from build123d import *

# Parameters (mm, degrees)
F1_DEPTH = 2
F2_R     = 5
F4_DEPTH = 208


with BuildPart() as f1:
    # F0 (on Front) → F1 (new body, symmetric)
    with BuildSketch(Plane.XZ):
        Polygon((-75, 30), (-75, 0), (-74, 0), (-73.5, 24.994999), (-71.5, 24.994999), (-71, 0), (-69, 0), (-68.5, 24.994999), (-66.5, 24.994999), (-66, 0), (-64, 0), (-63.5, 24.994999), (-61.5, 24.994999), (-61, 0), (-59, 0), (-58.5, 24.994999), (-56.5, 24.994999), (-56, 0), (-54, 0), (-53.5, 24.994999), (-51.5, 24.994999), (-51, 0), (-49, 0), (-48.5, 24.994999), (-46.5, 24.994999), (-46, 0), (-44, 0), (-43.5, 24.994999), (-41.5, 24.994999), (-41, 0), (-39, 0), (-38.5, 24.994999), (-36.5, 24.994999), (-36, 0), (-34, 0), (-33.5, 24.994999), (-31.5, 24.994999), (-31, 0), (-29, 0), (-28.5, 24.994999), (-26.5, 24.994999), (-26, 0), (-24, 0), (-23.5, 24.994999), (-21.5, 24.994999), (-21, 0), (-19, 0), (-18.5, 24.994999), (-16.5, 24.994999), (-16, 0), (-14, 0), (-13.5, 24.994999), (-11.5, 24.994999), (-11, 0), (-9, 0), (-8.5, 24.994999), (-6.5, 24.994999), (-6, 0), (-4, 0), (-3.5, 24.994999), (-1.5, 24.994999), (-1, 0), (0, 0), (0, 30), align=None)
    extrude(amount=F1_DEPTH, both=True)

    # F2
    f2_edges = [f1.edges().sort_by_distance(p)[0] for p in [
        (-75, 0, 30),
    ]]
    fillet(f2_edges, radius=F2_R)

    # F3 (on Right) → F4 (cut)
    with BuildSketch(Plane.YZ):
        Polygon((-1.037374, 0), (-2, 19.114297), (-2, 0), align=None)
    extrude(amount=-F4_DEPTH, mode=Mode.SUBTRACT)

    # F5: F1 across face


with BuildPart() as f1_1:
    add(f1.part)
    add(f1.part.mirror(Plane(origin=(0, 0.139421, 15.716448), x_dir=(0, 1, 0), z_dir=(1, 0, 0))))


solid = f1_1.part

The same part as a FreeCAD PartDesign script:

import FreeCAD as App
import Part
import Sketcher

V = App.Vector
Q = App.Units.Quantity


def edges_at(feature, points):
    """Names of the edges that pass closest to the given points."""
    edges = feature.Shape.Edges
    near = lambda p: min(range(len(edges)), key=lambda i: edges[i].distToShape(Part.Vertex(*p))[0])
    return sorted({f"Edge{near(p) + 1}" for p in points})

doc = App.newDocument("Part")
body = doc.addObject("PartDesign::Body", "Body")

# Sketch on XZ plane
sketch1 = body.newObject("Sketcher::SketchObject", "Sketch")
sketch1.AttachmentSupport = (doc.getObject("XZ_Plane"), [""])
sketch1.MapMode = "FlatFace"
sketch1.addGeometry([
    Part.LineSegment(V(-75, 30, 0), V(-75, 0, 0)),  # 0
    Part.LineSegment(V(-75, 0, 0), V(-74, 0, 0)),  # 1
    Part.LineSegment(V(-74, 0, 0), V(-73.5, 25, 0)),  # 2
    Part.LineSegment(V(-73.5, 25, 0), V(-71.5, 25, 0)),  # 3
    Part.LineSegment(V(-71.5, 25, 0), V(-71, 0, 0)),  # 4
    Part.LineSegment(V(-71, 0, 0), V(-69, 0, 0)),  # 5
    Part.LineSegment(V(-69, 0, 0), V(-68.5, 25, 0)),  # 6
    Part.LineSegment(V(-68.5, 25, 0), V(-66.5, 25, 0)),  # 7
    Part.LineSegment(V(-66.5, 25, 0), V(-66, 0, 0)),  # 8
    Part.LineSegment(V(-66, 0, 0), V(-64, 0, 0)),  # 9
    Part.LineSegment(V(-64, 0, 0), V(-63.5, 25, 0)),  # 10
    Part.LineSegment(V(-63.5, 25, 0), V(-61.5, 25, 0)),  # 11
    Part.LineSegment(V(-61.5, 25, 0), V(-61, 0, 0)),  # 12
    Part.LineSegment(V(-61, 0, 0), V(-59, 0, 0)),  # 13
    Part.LineSegment(V(-59, 0, 0), V(-58.5, 25, 0)),  # 14
    Part.LineSegment(V(-58.5, 25, 0), V(-56.5, 25, 0)),  # 15
    Part.LineSegment(V(-56.5, 25, 0), V(-56, 0, 0)),  # 16
    Part.LineSegment(V(-56, 0, 0), V(-54, 0, 0)),  # 17
    Part.LineSegment(V(-54, 0, 0), V(-53.5, 25, 0)),  # 18
    Part.LineSegment(V(-53.5, 25, 0), V(-51.5, 25, 0)),  # 19
    Part.LineSegment(V(-51.5, 25, 0), V(-51, 0, 0)),  # 20
    Part.LineSegment(V(-51, 0, 0), V(-49, 0, 0)),  # 21
    Part.LineSegment(V(-49, 0, 0), V(-48.5, 25, 0)),  # 22
    Part.LineSegment(V(-48.5, 25, 0), V(-46.5, 25, 0)),  # 23
    Part.LineSegment(V(-46.5, 25, 0), V(-46, 0, 0)),  # 24
    Part.LineSegment(V(-46, 0, 0), V(-44, 0, 0)),  # 25
    Part.LineSegment(V(-44, 0, 0), V(-43.5, 25, 0)),  # 26
    Part.LineSegment(V(-43.5, 25, 0), V(-41.5, 25, 0)),  # 27
    Part.LineSegment(V(-41.5, 25, 0), V(-41, 0, 0)),  # 28
    Part.LineSegment(V(-41, 0, 0), V(-39, 0, 0)),  # 29
    Part.LineSegment(V(-39, 0, 0), V(-38.5, 25, 0)),  # 30
    Part.LineSegment(V(-38.5, 25, 0), V(-36.5, 25, 0)),  # 31
    Part.LineSegment(V(-36.5, 25, 0), V(-36, 0, 0)),  # 32
    Part.LineSegment(V(-36, 0, 0), V(-34, 0, 0)),  # 33
    Part.LineSegment(V(-34, 0, 0), V(-33.5, 25, 0)),  # 34
    Part.LineSegment(V(-33.5, 25, 0), V(-31.5, 25, 0)),  # 35
    Part.LineSegment(V(-31.5, 25, 0), V(-31, 0, 0)),  # 36
    Part.LineSegment(V(-31, 0, 0), V(-29, 0, 0)),  # 37
    Part.LineSegment(V(-29, 0, 0), V(-28.5, 25, 0)),  # 38
    Part.LineSegment(V(-28.5, 25, 0), V(-26.5, 25, 0)),  # 39
    Part.LineSegment(V(-26.5, 25, 0), V(-26, 0, 0)),  # 40
    Part.LineSegment(V(-26, 0, 0), V(-24, 0, 0)),  # 41
    Part.LineSegment(V(-24, 0, 0), V(-23.5, 25, 0)),  # 42
    Part.LineSegment(V(-23.5, 25, 0), V(-21.5, 25, 0)),  # 43
    Part.LineSegment(V(-21.5, 25, 0), V(-21, 0, 0)),  # 44
    Part.LineSegment(V(-21, 0, 0), V(-19, 0, 0)),  # 45
    Part.LineSegment(V(-19, 0, 0), V(-18.5, 25, 0)),  # 46
    Part.LineSegment(V(-18.5, 25, 0), V(-16.5, 25, 0)),  # 47
    Part.LineSegment(V(-16.5, 25, 0), V(-16, 0, 0)),  # 48
    Part.LineSegment(V(-16, 0, 0), V(-14, 0, 0)),  # 49
    Part.LineSegment(V(-14, 0, 0), V(-13.5, 25, 0)),  # 50
    Part.LineSegment(V(-13.5, 25, 0), V(-11.5, 25, 0)),  # 51
    Part.LineSegment(V(-11.5, 25, 0), V(-11, 0, 0)),  # 52
    Part.LineSegment(V(-11, 0, 0), V(-9, 0, 0)),  # 53
    Part.LineSegment(V(-9, 0, 0), V(-8.5, 25, 0)),  # 54
    Part.LineSegment(V(-8.5, 25, 0), V(-6.5, 25, 0)),  # 55
    Part.LineSegment(V(-6.5, 25, 0), V(-6, 0, 0)),  # 56
    Part.LineSegment(V(-6, 0, 0), V(-4, 0, 0)),  # 57
    Part.LineSegment(V(-4, 0, 0), V(-3.5, 25, 0)),  # 58
    Part.LineSegment(V(-3.5, 25, 0), V(-1.5, 25, 0)),  # 59
    Part.LineSegment(V(-1.5, 25, 0), V(-1, 0, 0)),  # 60
    Part.LineSegment(V(-1, 0, 0), V(0, 0, 0)),  # 61
    Part.LineSegment(V(0, 0, 0), V(0, 30, 0)),  # 62
    Part.LineSegment(V(0, 30, 0), V(-75, 30, 0)),  # 63
], False)
sketch1.addConstraint([
    Sketcher.Constraint("Coincident", 0, 2, 1, 1),
    Sketcher.Constraint("Coincident", 1, 2, 2, 1),
    Sketcher.Constraint("Coincident", 2, 2, 3, 1),
    Sketcher.Constraint("Coincident", 3, 2, 4, 1),
    Sketcher.Constraint("Coincident", 4, 2, 5, 1),
    Sketcher.Constraint("Coincident", 5, 2, 6, 1),
    Sketcher.Constraint("Coincident", 6, 2, 7, 1),
    Sketcher.Constraint("Coincident", 7, 2, 8, 1),
    Sketcher.Constraint("Coincident", 8, 2, 9, 1),
    Sketcher.Constraint("Coincident", 9, 2, 10, 1),
    Sketcher.Constraint("Coincident", 10, 2, 11, 1),
    Sketcher.Constraint("Coincident", 11, 2, 12, 1),
    Sketcher.Constraint("Coincident", 12, 2, 13, 1),
    Sketcher.Constraint("Coincident", 13, 2, 14, 1),
    Sketcher.Constraint("Coincident", 14, 2, 15, 1),
    Sketcher.Constraint("Coincident", 15, 2, 16, 1),
    Sketcher.Constraint("Coincident", 16, 2, 17, 1),
    Sketcher.Constraint("Coincident", 17, 2, 18, 1),
    Sketcher.Constraint("Coincident", 18, 2, 19, 1),
    Sketcher.Constraint("Coincident", 19, 2, 20, 1),
    Sketcher.Constraint("Coincident", 20, 2, 21, 1),
    Sketcher.Constraint("Coincident", 21, 2, 22, 1),
    Sketcher.Constraint("Coincident", 22, 2, 23, 1),
    Sketcher.Constraint("Coincident", 23, 2, 24, 1),
    Sketcher.Constraint("Coincident", 24, 2, 25, 1),
    Sketcher.Constraint("Coincident", 25, 2, 26, 1),
    Sketcher.Constraint("Coincident", 26, 2, 27, 1),
    Sketcher.Constraint("Coincident", 27, 2, 28, 1),
    Sketcher.Constraint("Coincident", 28, 2, 29, 1),
    Sketcher.Constraint("Coincident", 29, 2, 30, 1),
    Sketcher.Constraint("Coincident", 30, 2, 31, 1),
    Sketcher.Constraint("Coincident", 31, 2, 32, 1),
    Sketcher.Constraint("Coincident", 32, 2, 33, 1),
    Sketcher.Constraint("Coincident", 33, 2, 34, 1),
    Sketcher.Constraint("Coincident", 34, 2, 35, 1),
    Sketcher.Constraint("Coincident", 35, 2, 36, 1),
    Sketcher.Constraint("Coincident", 36, 2, 37, 1),
    Sketcher.Constraint("Coincident", 37, 2, 38, 1),
    Sketcher.Constraint("Coincident", 38, 2, 39, 1),
    Sketcher.Constraint("Coincident", 39, 2, 40, 1),
    Sketcher.Constraint("Coincident", 40, 2, 41, 1),
    Sketcher.Constraint("Coincident", 41, 2, 42, 1),
    Sketcher.Constraint("Coincident", 42, 2, 43, 1),
    Sketcher.Constraint("Coincident", 43, 2, 44, 1),
    Sketcher.Constraint("Coincident", 44, 2, 45, 1),
    Sketcher.Constraint("Coincident", 45, 2, 46, 1),
    Sketcher.Constraint("Coincident", 46, 2, 47, 1),
    Sketcher.Constraint("Coincident", 47, 2, 48, 1),
    Sketcher.Constraint("Coincident", 48, 2, 49, 1),
    Sketcher.Constraint("Coincident", 49, 2, 50, 1),
    Sketcher.Constraint("Coincident", 50, 2, 51, 1),
    Sketcher.Constraint("Coincident", 51, 2, 52, 1),
    Sketcher.Constraint("Coincident", 52, 2, 53, 1),
    Sketcher.Constraint("Coincident", 53, 2, 54, 1),
    Sketcher.Constraint("Coincident", 54, 2, 55, 1),
    Sketcher.Constraint("Coincident", 55, 2, 56, 1),
    Sketcher.Constraint("Coincident", 56, 2, 57, 1),
    Sketcher.Constraint("Coincident", 57, 2, 58, 1),
    Sketcher.Constraint("Coincident", 58, 2, 59, 1),
    Sketcher.Constraint("Coincident", 59, 2, 60, 1),
    Sketcher.Constraint("Coincident", 60, 2, 61, 1),
    Sketcher.Constraint("Coincident", 61, 2, 62, 1),
    Sketcher.Constraint("Coincident", 62, 2, 63, 1),
    Sketcher.Constraint("Coincident", 63, 2, 0, 1),
    Sketcher.Constraint("Vertical", 0),
    Sketcher.Constraint("Horizontal", 1),
    Sketcher.Constraint("Horizontal", 3),
    Sketcher.Constraint("Horizontal", 5),
    Sketcher.Constraint("Horizontal", 7),
    Sketcher.Constraint("Horizontal", 9),
    Sketcher.Constraint("Horizontal", 11),
    Sketcher.Constraint("Horizontal", 13),
    Sketcher.Constraint("Horizontal", 15),
    Sketcher.Constraint("Horizontal", 17),
    Sketcher.Constraint("Horizontal", 19),
    Sketcher.Constraint("Horizontal", 21),
    Sketcher.Constraint("Horizontal", 23),
    Sketcher.Constraint("Horizontal", 25),
    Sketcher.Constraint("Horizontal", 27),
    Sketcher.Constraint("Horizontal", 29),
    Sketcher.Constraint("Horizontal", 31),
    Sketcher.Constraint("Horizontal", 33),
    Sketcher.Constraint("Horizontal", 35),
    Sketcher.Constraint("Horizontal", 37),
    Sketcher.Constraint("Horizontal", 39),
    Sketcher.Constraint("Horizontal", 41),
    Sketcher.Constraint("Horizontal", 43),
    Sketcher.Constraint("Horizontal", 45),
    Sketcher.Constraint("Horizontal", 47),
    Sketcher.Constraint("Horizontal", 49),
    Sketcher.Constraint("Horizontal", 51),
    Sketcher.Constraint("Horizontal", 53),
    Sketcher.Constraint("Horizontal", 55),
    Sketcher.Constraint("Horizontal", 57),
    Sketcher.Constraint("Horizontal", 59),
    Sketcher.Constraint("Horizontal", 61),
    Sketcher.Constraint("Vertical", 62),
    Sketcher.Constraint("Horizontal", 63),
    Sketcher.Constraint("Coincident", 61, 2, -1, 1),
    Sketcher.Constraint("PointOnObject", 0, 2, -1),
    Sketcher.Constraint("PointOnObject", 4, 2, -1),
    Sketcher.Constraint("PointOnObject", 8, 2, -1),
    Sketcher.Constraint("PointOnObject", 12, 2, -1),
    Sketcher.Constraint("PointOnObject", 16, 2, -1),
    Sketcher.Constraint("PointOnObject", 20, 2, -1),
    Sketcher.Constraint("PointOnObject", 24, 2, -1),
    Sketcher.Constraint("PointOnObject", 28, 2, -1),
    Sketcher.Constraint("PointOnObject", 32, 2, -1),
    Sketcher.Constraint("PointOnObject", 36, 2, -1),
    Sketcher.Constraint("PointOnObject", 40, 2, -1),
    Sketcher.Constraint("PointOnObject", 44, 2, -1),
    Sketcher.Constraint("PointOnObject", 48, 2, -1),
    Sketcher.Constraint("PointOnObject", 52, 2, -1),
    Sketcher.Constraint("PointOnObject", 56, 2, -1),
    Sketcher.Constraint("Parallel", 2, 6),
    Sketcher.Constraint("Parallel", 4, 8),
    Sketcher.Constraint("Parallel", 6, 10),
    Sketcher.Constraint("Parallel", 8, 12),
    Sketcher.Constraint("Parallel", 10, 14),
    Sketcher.Constraint("Parallel", 12, 16),
    Sketcher.Constraint("Parallel", 14, 18),
    Sketcher.Constraint("Parallel", 16, 20),
    Sketcher.Constraint("Parallel", 18, 22),
    Sketcher.Constraint("Parallel", 20, 24),
    Sketcher.Constraint("Parallel", 22, 26),
    Sketcher.Constraint("Parallel", 24, 28),
    Sketcher.Constraint("Parallel", 26, 30),
    Sketcher.Constraint("Parallel", 28, 32),
    Sketcher.Constraint("Parallel", 30, 34),
    Sketcher.Constraint("Parallel", 32, 36),
    Sketcher.Constraint("Parallel", 34, 38),
    Sketcher.Constraint("Parallel", 36, 40),
    Sketcher.Constraint("Parallel", 38, 42),
    Sketcher.Constraint("Parallel", 40, 44),
    Sketcher.Constraint("Parallel", 42, 46),
    Sketcher.Constraint("Parallel", 44, 48),
    Sketcher.Constraint("Parallel", 46, 50),
    Sketcher.Constraint("Parallel", 48, 52),
    Sketcher.Constraint("Parallel", 50, 54),
    Sketcher.Constraint("Parallel", 52, 56),
    Sketcher.Constraint("Parallel", 54, 58),
    Sketcher.Constraint("Parallel", 56, 60),
    Sketcher.Constraint("Horizontal", 3, 2, 6, 2),
    Sketcher.Constraint("Horizontal", 7, 2, 10, 2),
    Sketcher.Constraint("Horizontal", 11, 2, 14, 2),
    Sketcher.Constraint("Horizontal", 15, 2, 18, 2),
    Sketcher.Constraint("Horizontal", 19, 2, 22, 2),
    Sketcher.Constraint("Horizontal", 23, 2, 26, 2),
    Sketcher.Constraint("Horizontal", 27, 2, 30, 2),
    Sketcher.Constraint("Horizontal", 31, 2, 34, 2),
    Sketcher.Constraint("Horizontal", 35, 2, 38, 2),
    Sketcher.Constraint("Horizontal", 39, 2, 42, 2),
    Sketcher.Constraint("Horizontal", 43, 2, 46, 2),
    Sketcher.Constraint("Horizontal", 47, 2, 50, 2),
    Sketcher.Constraint("Horizontal", 51, 2, 54, 2),
    Sketcher.Constraint("Horizontal", 55, 2, 58, 2),
    Sketcher.Constraint("Equal", 3, 5),
    Sketcher.Constraint("Equal", 5, 7),
    Sketcher.Constraint("Equal", 7, 9),
    Sketcher.Constraint("Equal", 9, 11),
    Sketcher.Constraint("Equal", 11, 13),
    Sketcher.Constraint("Equal", 13, 15),
    Sketcher.Constraint("Equal", 15, 17),
    Sketcher.Constraint("Equal", 17, 19),
    Sketcher.Constraint("Equal", 19, 21),
    Sketcher.Constraint("Equal", 21, 23),
    Sketcher.Constraint("Equal", 23, 25),
    Sketcher.Constraint("Equal", 25, 27),
    Sketcher.Constraint("Equal", 27, 29),
    Sketcher.Constraint("Equal", 29, 31),
    Sketcher.Constraint("Equal", 31, 33),
    Sketcher.Constraint("Equal", 33, 35),
    Sketcher.Constraint("Equal", 35, 37),
    Sketcher.Constraint("Equal", 37, 39),
    Sketcher.Constraint("Equal", 39, 41),
    Sketcher.Constraint("Equal", 41, 43),
    Sketcher.Constraint("Equal", 43, 45),
    Sketcher.Constraint("Equal", 45, 47),
    Sketcher.Constraint("Equal", 47, 49),
    Sketcher.Constraint("Equal", 49, 51),
    Sketcher.Constraint("Equal", 51, 53),
    Sketcher.Constraint("Equal", 53, 55),
    Sketcher.Constraint("Equal", 55, 57),
    Sketcher.Constraint("Equal", 57, 59),
    Sketcher.Constraint("Equal", 1, 61),
    Sketcher.Constraint("Equal", 2, 4),
    Sketcher.Constraint("DistanceX", 1, 1, 1, 2, Q("1 mm")),
    Sketcher.Constraint("DistanceX", 3, 1, 3, 2, Q("2 mm")),
    Sketcher.Constraint("DistanceX", 63, 2, 63, 1, Q("75 mm")),
    Sketcher.Constraint("DistanceY", 0, 2, 0, 1, Q("30 mm")),
    Sketcher.Constraint("Distance", 2, Q("25 mm")),
])
pad1 = body.newObject("PartDesign::Pad", "Pad")
pad1.Profile = sketch1
pad1.Length = 4
pad1.Midplane = True
doc.recompute()

fillet = body.newObject("PartDesign::Fillet", "Fillet")
fillet.Base = (pad1, edges_at(pad1, [(-75, 0, 30)]))
fillet.Radius = 5

# Sketch on YZ plane
sketch2 = body.newObject("Sketcher::SketchObject", "Sketch001")
sketch2.AttachmentSupport = (doc.getObject("YZ_Plane"), [""])
sketch2.MapMode = "FlatFace"
sketch2.addGeometry([
    Part.LineSegment(V(-1, 0, 0), V(-2, 19.1, 0)),
    Part.LineSegment(V(-2, 19.1, 0), V(-2, 0, 0)),
    Part.LineSegment(V(-2, 0, 0), V(-1, 0, 0)),
], False)
sketch2.addConstraint([
    Sketcher.Constraint("Coincident", 0, 2, 1, 1),
    Sketcher.Constraint("Coincident", 1, 2, 2, 1),
    Sketcher.Constraint("Coincident", 2, 2, 0, 1),
    Sketcher.Constraint("Vertical", 1),
    Sketcher.Constraint("Horizontal", 2),
    Sketcher.Constraint("PointOnObject", 1, 2, -1),
    Sketcher.Constraint("DistanceX", 0, 2, -1, 1, Q("2 mm")),
    Sketcher.Constraint("Distance", 0, Q("19.138521 mm")),
    Sketcher.Constraint("DistanceX", 2, 1, 2, 2, Q("0.962626 mm")),
])
pocket1 = body.newObject("PartDesign::Pocket", "Pocket")
pocket1.Profile = sketch2
pocket1.Length = 208
body2 = doc.addObject("PartDesign::Body", "Body001")
doc.recompute()

body2.BaseFeature = body
doc.recompute()

mirroring = doc.addObject("Part::Mirroring", "Mirroring")
mirroring.Source = body
mirroring.Base = V(0, 0.139421, 15.716448)
mirroring.Normal = V(1, 0, 0)
body3 = doc.addObject("PartDesign::Body", "Body002")
body3.BaseFeature = mirroring
boolean = body2.newObject("PartDesign::Boolean", "Boolean")
boolean.Type = "Fuse"
boolean.addObjects([body3])
doc.recompute()
mirroring.Visibility = False

doc.recompute()
